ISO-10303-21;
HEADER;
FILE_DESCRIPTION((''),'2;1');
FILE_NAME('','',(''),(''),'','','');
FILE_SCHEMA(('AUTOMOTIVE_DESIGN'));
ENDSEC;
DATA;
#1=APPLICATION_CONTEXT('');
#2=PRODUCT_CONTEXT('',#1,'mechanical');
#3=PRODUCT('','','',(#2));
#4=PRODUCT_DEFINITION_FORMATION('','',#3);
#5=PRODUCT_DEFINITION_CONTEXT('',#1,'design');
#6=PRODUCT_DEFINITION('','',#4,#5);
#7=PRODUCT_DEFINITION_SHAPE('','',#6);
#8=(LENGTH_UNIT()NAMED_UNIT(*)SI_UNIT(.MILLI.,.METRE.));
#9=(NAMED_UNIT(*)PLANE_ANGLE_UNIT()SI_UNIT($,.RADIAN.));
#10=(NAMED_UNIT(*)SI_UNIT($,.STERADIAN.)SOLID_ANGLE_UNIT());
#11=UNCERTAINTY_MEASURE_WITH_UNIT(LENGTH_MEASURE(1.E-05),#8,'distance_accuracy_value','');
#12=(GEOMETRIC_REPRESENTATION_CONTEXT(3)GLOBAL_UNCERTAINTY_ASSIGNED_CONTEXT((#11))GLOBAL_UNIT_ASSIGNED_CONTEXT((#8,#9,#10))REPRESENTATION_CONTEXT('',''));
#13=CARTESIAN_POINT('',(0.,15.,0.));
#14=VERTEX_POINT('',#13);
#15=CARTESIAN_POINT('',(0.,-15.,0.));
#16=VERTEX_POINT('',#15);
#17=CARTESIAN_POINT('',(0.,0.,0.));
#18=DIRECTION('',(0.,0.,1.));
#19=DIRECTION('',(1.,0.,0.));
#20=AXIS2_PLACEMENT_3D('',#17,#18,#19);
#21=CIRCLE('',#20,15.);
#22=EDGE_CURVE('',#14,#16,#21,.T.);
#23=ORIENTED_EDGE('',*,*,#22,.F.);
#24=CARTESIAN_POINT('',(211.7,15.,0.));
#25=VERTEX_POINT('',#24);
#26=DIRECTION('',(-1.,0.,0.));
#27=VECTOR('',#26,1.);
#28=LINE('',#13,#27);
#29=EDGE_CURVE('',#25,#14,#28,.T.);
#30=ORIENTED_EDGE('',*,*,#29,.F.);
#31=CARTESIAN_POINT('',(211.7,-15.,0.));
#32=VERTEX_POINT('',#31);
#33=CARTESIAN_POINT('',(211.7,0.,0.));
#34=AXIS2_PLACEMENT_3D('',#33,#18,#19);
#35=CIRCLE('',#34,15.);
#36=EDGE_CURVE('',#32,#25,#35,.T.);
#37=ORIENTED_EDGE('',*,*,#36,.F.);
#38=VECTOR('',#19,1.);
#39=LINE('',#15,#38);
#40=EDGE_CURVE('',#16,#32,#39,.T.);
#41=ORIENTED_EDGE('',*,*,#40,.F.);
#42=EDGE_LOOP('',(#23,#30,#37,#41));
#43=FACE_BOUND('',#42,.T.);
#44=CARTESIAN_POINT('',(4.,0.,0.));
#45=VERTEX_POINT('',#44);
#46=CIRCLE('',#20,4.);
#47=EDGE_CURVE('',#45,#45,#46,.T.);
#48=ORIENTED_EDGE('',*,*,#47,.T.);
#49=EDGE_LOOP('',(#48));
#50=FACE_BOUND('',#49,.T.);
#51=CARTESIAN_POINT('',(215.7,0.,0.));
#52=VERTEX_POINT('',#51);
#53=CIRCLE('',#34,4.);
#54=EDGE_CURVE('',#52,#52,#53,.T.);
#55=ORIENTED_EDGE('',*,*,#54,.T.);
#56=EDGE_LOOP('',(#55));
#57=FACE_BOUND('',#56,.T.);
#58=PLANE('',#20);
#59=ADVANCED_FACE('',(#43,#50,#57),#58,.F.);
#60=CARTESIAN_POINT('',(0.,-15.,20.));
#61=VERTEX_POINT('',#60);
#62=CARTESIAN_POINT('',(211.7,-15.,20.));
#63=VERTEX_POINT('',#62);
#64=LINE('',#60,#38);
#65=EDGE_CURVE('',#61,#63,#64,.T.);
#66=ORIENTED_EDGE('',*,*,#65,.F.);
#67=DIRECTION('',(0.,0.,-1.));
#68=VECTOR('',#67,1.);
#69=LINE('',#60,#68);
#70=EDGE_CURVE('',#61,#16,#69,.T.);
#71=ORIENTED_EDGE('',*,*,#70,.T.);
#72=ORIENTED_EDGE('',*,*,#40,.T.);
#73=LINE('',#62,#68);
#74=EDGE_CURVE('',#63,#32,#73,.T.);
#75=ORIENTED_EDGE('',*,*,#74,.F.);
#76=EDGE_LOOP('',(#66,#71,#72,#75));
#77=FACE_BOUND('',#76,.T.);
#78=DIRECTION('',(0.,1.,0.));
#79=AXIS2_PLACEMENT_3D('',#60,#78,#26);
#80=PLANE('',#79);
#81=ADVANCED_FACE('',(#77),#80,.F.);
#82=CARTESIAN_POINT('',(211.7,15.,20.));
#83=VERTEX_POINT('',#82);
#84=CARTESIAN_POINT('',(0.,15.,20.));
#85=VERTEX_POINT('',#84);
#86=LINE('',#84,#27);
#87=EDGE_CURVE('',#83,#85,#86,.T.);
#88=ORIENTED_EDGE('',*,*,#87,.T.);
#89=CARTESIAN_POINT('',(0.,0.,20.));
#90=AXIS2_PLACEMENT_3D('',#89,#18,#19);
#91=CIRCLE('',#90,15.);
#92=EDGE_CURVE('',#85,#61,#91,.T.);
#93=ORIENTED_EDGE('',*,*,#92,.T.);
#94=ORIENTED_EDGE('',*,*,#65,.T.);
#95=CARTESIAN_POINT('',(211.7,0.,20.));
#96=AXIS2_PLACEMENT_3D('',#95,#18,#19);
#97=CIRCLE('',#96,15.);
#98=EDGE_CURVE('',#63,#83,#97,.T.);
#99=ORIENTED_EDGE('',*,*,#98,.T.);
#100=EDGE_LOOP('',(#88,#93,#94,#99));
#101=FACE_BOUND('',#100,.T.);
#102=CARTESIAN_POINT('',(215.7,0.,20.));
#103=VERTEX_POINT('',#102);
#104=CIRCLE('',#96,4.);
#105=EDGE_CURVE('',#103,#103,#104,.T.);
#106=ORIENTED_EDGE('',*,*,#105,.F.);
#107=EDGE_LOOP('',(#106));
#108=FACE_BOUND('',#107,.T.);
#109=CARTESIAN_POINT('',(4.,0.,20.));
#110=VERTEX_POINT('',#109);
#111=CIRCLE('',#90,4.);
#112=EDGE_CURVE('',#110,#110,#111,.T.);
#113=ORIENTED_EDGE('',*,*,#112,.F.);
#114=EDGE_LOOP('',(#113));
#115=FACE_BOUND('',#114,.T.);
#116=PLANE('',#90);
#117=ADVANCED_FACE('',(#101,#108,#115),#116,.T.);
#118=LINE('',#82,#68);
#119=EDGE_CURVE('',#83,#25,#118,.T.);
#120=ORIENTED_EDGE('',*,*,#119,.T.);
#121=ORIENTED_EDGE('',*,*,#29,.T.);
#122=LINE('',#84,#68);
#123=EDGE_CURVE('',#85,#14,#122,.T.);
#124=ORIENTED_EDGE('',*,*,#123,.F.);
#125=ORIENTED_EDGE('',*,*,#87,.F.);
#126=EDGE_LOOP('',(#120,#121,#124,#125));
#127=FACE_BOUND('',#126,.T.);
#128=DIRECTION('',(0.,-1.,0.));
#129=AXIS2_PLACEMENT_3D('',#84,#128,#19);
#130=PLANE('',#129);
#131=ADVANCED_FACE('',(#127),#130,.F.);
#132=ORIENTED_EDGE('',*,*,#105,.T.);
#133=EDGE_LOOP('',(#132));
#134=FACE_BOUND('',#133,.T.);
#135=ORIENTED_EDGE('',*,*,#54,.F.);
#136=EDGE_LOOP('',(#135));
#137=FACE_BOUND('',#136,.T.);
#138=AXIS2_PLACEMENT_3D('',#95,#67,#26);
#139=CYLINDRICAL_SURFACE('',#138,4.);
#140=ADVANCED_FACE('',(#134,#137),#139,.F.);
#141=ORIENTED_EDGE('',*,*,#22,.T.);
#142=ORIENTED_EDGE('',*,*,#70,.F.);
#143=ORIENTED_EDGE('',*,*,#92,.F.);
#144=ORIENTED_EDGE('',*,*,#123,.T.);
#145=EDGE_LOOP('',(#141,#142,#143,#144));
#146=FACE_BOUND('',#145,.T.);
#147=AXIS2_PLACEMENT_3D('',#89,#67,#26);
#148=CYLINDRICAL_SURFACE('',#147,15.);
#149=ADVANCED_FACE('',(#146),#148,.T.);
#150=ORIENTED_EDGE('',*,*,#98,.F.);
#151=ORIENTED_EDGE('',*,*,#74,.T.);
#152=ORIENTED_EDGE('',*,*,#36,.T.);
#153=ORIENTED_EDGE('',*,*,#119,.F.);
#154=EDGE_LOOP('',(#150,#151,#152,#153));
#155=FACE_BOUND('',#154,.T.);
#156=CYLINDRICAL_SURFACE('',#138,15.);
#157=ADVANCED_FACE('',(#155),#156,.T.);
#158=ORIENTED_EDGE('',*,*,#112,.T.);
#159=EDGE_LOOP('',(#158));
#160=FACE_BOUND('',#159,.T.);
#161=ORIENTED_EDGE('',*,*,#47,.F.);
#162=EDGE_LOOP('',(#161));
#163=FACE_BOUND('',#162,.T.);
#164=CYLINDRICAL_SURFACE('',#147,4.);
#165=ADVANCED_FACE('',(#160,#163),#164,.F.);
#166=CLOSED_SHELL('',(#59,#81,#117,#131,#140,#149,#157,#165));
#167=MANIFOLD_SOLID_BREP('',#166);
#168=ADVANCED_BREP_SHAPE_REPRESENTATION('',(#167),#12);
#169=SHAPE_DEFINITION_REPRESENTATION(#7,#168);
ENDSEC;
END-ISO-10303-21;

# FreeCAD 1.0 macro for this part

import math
import FreeCAD as App
import Part
import Sketcher
from FreeCAD import Vector
Q = App.Units.Quantity

doc = App.newDocument("Part")
body = doc.addObject("PartDesign::Body", "Body")

# Sketch on XY plane
sketch1 = body.newObject("Sketcher::SketchObject", "Sketch")
sketch1.AttachmentSupport = (doc.getObject("XY_Plane"), [""])
sketch1.MapMode = "FlatFace"
sketch1.addGeometry(Part.LineSegment(Vector(211.7, 15, 0), Vector(0, 15, 0)), False)
sketch1.addGeometry(Part.ArcOfCircle(Part.Circle(Vector(0, 0, 0), Vector(0, 0, 1), 15), math.radians(90), math.radians(270)), False)
sketch1.addGeometry(Part.LineSegment(Vector(0, -15, 0), Vector(211.7, -15, 0)), False)
sketch1.addGeometry(Part.ArcOfCircle(Part.Circle(Vector(211.7, 0, 0), Vector(0, 0, 1), 15), math.radians(-90), math.radians(90)), False)
sketch1.addGeometry(Part.Circle(Vector(211.7, 0, 0), Vector(0, 0, 1), 4), False)
sketch1.addGeometry(Part.Circle(Vector(0, 0, 0), Vector(0, 0, 1), 4), False)
sketch1.addConstraint(Sketcher.Constraint("Tangent", 0, 2, 1, 1))
sketch1.addConstraint(Sketcher.Constraint("Tangent", 1, 2, 2, 1))
sketch1.addConstraint(Sketcher.Constraint("Tangent", 2, 2, 3, 1))
sketch1.addConstraint(Sketcher.Constraint("Tangent", 3, 2, 0, 1))
sketch1.addConstraint(Sketcher.Constraint("Horizontal", 0))
sketch1.addConstraint(Sketcher.Constraint("Horizontal", 2))
sketch1.addConstraint(Sketcher.Constraint("Coincident", 1, 3, -1, 1))
sketch1.addConstraint(Sketcher.Constraint("Coincident", 5, 3, -1, 1))
sketch1.addConstraint(Sketcher.Constraint("Coincident", 4, 3, 3, 3))
sketch1.addConstraint(Sketcher.Constraint("Equal", 4, 5))
sketch1.addConstraint(Sketcher.Constraint("Diameter", 4, Q("8 mm")))
sketch1.addConstraint(Sketcher.Constraint("Radius", 1, Q("15 mm")))
sketch1.addConstraint(Sketcher.Constraint("DistanceX", 0, 2, 0, 1, Q("211.7 mm")))
pad1 = body.newObject("PartDesign::Pad", "Pad")
pad1.Profile = sketch1
pad1.Length = 20

doc.recompute()
